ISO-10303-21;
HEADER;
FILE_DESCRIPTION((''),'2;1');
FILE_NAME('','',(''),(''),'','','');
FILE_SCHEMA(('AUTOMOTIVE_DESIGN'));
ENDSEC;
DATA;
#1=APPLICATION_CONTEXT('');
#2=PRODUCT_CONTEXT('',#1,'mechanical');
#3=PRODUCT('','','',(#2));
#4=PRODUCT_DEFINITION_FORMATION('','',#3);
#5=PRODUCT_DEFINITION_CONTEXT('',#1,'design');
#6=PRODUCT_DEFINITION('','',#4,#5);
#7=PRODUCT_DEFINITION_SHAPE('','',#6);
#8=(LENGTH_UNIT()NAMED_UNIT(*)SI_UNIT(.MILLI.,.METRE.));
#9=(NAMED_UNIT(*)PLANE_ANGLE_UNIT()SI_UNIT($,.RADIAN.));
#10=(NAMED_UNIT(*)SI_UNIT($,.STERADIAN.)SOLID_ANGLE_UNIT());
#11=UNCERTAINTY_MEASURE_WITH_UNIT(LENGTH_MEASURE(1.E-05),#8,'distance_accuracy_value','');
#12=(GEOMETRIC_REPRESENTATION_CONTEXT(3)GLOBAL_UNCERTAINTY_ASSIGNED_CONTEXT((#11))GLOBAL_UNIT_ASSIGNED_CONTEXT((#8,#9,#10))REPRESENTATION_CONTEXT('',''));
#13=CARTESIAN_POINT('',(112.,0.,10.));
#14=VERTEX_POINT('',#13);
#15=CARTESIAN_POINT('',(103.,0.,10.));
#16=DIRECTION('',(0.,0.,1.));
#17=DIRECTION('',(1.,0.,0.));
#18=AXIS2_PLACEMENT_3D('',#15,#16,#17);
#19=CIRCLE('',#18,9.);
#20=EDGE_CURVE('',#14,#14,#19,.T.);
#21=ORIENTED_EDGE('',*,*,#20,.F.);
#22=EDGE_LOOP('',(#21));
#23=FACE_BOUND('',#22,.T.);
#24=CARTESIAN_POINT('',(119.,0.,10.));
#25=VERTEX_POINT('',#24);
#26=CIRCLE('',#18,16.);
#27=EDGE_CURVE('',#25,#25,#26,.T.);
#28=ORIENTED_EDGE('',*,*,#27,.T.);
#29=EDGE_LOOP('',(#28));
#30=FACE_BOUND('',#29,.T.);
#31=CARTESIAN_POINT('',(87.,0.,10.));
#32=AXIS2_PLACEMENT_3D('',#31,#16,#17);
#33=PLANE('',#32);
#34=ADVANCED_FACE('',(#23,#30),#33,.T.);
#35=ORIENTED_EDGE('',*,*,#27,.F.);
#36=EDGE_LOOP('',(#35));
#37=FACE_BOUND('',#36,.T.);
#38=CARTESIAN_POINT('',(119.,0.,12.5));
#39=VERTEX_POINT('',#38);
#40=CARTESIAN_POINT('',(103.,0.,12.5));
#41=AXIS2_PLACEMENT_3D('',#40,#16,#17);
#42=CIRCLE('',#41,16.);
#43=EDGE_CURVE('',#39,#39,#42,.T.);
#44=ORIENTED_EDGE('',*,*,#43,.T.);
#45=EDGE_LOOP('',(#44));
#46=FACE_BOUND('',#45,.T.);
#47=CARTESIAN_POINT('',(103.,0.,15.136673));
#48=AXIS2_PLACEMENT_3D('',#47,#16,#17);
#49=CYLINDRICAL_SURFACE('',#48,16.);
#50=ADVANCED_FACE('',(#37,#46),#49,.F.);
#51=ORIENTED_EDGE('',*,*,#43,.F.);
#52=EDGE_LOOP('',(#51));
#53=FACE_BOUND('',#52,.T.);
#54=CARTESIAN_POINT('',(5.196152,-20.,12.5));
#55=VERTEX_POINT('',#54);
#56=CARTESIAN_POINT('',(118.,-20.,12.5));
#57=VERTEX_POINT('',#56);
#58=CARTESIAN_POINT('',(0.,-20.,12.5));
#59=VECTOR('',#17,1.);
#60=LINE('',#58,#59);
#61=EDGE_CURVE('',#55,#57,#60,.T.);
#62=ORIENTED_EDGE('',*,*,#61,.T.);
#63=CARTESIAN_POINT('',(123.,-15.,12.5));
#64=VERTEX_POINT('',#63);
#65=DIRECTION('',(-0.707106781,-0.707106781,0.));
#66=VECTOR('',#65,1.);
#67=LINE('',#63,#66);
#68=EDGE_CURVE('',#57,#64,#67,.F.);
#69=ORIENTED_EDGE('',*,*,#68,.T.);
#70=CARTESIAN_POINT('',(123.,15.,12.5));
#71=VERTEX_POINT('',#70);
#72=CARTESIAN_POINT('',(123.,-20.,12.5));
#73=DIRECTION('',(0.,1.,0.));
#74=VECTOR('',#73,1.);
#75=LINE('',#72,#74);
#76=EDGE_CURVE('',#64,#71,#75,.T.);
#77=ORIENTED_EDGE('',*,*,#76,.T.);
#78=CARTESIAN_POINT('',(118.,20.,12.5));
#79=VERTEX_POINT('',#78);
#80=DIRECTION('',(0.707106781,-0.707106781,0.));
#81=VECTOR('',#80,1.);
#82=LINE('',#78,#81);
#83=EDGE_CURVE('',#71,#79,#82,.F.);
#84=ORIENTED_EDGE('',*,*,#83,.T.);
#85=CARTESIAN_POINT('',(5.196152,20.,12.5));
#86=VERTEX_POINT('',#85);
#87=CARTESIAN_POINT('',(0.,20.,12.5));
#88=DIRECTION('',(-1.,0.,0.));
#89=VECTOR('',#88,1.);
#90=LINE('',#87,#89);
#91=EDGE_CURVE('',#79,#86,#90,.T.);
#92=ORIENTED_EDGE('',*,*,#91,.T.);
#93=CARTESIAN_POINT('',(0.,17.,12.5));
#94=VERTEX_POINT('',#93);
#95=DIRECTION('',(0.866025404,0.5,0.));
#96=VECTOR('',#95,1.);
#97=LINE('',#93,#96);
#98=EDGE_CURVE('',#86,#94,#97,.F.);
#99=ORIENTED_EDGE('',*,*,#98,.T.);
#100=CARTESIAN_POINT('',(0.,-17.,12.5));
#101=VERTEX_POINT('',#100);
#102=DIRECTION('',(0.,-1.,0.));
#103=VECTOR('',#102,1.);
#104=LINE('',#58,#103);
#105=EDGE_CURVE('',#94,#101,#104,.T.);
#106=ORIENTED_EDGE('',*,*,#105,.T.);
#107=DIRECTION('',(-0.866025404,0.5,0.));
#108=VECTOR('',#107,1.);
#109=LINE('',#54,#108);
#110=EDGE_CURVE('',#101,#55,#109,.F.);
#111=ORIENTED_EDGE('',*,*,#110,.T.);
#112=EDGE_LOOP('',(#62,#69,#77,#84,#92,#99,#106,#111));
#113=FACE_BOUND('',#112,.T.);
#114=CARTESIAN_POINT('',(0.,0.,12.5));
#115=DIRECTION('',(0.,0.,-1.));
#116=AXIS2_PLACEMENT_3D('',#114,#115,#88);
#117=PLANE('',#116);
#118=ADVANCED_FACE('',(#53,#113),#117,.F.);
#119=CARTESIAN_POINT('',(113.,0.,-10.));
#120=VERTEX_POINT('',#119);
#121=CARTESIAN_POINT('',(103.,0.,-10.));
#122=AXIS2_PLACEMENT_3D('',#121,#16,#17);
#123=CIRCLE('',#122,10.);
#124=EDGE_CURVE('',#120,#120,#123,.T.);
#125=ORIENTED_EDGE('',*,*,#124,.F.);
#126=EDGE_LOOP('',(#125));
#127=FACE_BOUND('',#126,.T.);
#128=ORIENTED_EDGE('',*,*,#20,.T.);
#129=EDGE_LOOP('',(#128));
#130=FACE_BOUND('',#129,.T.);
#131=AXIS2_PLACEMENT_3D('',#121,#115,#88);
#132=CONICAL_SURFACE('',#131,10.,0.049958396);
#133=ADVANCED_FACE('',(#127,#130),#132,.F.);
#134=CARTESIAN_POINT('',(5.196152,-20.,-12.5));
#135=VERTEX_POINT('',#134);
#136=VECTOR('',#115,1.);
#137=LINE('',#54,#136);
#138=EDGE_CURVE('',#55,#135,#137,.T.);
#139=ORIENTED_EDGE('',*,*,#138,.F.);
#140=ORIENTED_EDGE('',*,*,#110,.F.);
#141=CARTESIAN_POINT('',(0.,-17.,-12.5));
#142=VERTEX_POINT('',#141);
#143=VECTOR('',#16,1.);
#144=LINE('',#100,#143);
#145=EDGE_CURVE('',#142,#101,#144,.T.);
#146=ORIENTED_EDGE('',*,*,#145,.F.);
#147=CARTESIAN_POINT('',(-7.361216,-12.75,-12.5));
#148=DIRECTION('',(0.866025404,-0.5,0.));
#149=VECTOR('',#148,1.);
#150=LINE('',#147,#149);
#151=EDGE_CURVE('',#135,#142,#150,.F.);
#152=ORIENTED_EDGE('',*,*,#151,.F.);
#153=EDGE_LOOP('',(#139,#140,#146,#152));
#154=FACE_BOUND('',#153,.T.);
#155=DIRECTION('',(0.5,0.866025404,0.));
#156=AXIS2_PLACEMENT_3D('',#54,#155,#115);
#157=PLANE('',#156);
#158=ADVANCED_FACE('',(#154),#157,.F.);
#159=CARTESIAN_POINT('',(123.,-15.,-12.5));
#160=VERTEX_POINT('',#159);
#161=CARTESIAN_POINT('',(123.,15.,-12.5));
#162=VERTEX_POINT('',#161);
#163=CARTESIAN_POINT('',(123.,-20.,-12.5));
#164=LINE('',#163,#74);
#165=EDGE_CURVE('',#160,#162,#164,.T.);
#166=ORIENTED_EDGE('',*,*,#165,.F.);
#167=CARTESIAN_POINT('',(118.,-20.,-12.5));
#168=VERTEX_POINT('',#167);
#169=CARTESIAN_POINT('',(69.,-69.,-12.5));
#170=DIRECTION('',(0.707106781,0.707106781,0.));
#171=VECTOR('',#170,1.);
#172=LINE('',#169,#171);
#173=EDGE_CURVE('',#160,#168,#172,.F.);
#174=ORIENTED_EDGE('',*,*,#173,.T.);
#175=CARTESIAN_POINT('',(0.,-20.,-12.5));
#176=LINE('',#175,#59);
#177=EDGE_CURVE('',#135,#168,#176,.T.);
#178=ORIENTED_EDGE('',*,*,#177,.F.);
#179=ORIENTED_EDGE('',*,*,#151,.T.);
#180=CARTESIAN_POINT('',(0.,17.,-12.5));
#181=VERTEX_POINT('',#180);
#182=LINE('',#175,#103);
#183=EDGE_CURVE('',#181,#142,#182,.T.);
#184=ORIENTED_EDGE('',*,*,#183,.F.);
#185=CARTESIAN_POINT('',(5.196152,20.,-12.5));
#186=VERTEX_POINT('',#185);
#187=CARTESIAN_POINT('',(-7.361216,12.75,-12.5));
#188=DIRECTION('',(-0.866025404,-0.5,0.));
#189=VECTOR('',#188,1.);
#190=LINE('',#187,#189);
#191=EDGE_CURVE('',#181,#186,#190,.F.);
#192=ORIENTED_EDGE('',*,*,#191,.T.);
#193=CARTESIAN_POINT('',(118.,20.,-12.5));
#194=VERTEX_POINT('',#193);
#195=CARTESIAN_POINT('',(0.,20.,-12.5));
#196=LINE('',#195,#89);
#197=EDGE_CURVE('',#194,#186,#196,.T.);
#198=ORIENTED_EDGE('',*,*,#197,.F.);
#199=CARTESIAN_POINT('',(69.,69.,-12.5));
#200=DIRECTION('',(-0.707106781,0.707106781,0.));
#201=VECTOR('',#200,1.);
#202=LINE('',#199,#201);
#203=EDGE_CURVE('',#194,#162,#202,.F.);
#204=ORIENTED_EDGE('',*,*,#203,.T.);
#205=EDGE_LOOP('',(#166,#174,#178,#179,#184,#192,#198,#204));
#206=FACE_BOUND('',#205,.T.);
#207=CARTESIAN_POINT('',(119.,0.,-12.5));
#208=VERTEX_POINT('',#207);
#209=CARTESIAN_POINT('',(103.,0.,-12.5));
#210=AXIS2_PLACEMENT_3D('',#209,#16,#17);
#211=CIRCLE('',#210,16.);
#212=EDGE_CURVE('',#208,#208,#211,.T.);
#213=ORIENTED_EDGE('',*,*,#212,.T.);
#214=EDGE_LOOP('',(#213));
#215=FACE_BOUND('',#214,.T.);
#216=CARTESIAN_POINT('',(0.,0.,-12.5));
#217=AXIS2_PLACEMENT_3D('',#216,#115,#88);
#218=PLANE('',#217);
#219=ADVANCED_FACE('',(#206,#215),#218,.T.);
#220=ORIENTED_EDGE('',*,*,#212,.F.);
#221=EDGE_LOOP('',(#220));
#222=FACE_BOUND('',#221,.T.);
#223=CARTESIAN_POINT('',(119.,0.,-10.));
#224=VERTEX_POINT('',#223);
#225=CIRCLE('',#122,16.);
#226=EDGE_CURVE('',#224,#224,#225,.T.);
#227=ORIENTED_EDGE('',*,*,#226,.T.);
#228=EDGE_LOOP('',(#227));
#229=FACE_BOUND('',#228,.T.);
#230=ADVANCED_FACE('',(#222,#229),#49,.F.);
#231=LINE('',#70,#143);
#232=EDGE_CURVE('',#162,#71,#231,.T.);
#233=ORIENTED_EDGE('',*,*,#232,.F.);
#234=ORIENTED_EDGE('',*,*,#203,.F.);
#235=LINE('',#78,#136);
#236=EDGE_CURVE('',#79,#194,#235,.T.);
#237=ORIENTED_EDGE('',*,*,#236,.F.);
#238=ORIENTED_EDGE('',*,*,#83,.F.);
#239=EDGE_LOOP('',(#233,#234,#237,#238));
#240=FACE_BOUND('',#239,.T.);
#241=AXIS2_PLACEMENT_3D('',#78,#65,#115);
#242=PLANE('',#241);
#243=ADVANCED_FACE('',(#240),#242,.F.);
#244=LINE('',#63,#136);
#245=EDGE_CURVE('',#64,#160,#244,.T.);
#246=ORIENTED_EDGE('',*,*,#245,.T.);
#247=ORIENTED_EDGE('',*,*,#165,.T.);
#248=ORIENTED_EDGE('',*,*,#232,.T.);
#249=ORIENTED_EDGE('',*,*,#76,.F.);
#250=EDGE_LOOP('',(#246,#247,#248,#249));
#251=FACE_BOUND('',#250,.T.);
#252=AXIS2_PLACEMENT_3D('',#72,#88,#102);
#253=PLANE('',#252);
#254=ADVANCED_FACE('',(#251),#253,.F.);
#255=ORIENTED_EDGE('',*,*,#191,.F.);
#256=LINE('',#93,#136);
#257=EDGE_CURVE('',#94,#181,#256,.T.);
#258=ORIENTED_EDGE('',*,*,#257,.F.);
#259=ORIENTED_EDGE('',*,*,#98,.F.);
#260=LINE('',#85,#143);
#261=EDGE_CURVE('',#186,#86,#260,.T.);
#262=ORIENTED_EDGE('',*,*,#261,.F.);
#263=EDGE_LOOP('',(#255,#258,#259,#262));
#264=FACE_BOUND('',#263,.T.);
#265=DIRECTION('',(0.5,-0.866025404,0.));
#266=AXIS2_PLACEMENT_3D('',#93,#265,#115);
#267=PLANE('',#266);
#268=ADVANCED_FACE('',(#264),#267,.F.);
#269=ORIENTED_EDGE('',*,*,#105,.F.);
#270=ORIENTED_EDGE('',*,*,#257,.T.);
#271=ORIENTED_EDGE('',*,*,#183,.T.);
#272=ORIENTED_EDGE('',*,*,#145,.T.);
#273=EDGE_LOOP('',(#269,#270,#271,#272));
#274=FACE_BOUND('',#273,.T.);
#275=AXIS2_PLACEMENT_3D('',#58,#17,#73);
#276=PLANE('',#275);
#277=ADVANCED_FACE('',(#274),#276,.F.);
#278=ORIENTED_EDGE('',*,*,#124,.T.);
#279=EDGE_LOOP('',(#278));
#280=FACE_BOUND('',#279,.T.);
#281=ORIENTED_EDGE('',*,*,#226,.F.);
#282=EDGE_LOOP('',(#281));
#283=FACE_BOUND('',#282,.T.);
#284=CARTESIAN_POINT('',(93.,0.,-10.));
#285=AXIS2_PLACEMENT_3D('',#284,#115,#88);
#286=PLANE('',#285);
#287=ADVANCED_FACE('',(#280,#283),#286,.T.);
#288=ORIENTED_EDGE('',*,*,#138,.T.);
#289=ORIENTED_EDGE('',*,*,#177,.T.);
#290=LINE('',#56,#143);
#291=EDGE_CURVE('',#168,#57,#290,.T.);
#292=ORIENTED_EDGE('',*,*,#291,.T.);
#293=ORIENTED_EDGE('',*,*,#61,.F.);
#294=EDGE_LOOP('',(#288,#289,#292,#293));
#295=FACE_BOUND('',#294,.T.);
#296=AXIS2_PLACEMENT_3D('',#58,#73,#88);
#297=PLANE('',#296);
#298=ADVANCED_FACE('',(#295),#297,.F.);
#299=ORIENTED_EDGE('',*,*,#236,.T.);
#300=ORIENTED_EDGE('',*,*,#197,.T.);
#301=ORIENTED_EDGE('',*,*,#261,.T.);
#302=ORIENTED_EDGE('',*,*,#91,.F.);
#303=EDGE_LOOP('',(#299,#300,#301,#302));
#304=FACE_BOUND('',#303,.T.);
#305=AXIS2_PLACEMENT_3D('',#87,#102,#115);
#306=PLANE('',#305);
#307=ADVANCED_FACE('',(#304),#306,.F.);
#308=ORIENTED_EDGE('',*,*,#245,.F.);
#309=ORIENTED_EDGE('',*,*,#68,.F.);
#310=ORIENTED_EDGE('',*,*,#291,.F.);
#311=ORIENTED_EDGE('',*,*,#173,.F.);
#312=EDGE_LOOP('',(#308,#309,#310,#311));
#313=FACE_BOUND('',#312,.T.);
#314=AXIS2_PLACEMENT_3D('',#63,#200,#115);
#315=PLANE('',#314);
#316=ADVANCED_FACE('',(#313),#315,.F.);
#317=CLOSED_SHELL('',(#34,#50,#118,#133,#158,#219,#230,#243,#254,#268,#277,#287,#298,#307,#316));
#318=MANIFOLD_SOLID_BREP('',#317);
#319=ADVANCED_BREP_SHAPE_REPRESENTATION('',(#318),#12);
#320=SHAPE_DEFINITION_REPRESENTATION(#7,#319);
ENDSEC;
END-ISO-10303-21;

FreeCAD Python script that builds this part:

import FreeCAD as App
import Part
import Sketcher


def edges_at(feature, points):
    """Names of the edges that pass closest to the given points."""
    edges = feature.Shape.Edges
    near = lambda p: min(range(len(edges)), key=lambda i: edges[i].distToShape(Part.Vertex(*p))[0])
    return sorted({f"Edge{near(p) + 1}" for p in points})


def add_polygon(sketch, points):
    """Adds a closed chain of lines whose ends are joined by coincident constraints."""
    first, n = sketch.GeometryCount, len(points)
    for a, b in zip(points, points[1:] + points[:1]):
        sketch.addGeometry(Part.LineSegment(App.Vector(*a, 0), App.Vector(*b, 0)), False)
    for i in range(n):
        sketch.addConstraint(Sketcher.Constraint("Coincident", first + i, 2, first + (i + 1) % n, 1))

doc = App.newDocument("Part")
params = doc.addObject("Spreadsheet::Sheet", "Params")
for row, (alias, value) in enumerate([
    ("sketch1_width", "123 mm"),
    ("sketch1_height", "40 mm"),
    ("pad1_length", "25 mm"),
    ("sketch2_width", "16 mm"),
    ("sketch2_width2", "6 mm"),
    ("sketch2_width3", "7 mm"),
    ("sketch2_height", "25 mm"),
    ("sketch2_height2", "2.5 mm"),
    ("groove_angle", "360 deg"),
    ("chamfer_size", "3 mm"),
    ("chamfer_size2", "5.196152 mm"),
    ("chamfer2_size", "5 mm"),
], start=1):
    params.set(f"A{row}", alias)
    params.set(f"B{row}", "=" + value)
    params.setAlias(f"B{row}", alias)

body = doc.addObject("PartDesign::Body", "Body")

sketch1 = body.newObject("Sketcher::SketchObject", "Sketch")
sketch1.AttachmentSupport = (doc.getObject("XY_Plane"), [""])
sketch1.MapMode = "FlatFace"
add_polygon(sketch1, [(0, 20), (0, -20), (123, -20), (123, 20)])
sketch1.addConstraint([
    Sketcher.Constraint("Vertical", 0),
    Sketcher.Constraint("Horizontal", 1),
    Sketcher.Constraint("Vertical", 2),
    Sketcher.Constraint("Horizontal", 3),
    Sketcher.Constraint("Symmetric", 0, 2, 3, 2, -1, 1),
    Sketcher.Constraint("DistanceX", 1, 1, 1, 2, 123.0),
    Sketcher.Constraint("DistanceY", 0, 2, 0, 1, 40.0),
])
sketch1.setExpression("Constraints[9]", "Params.sketch1_width")
sketch1.setExpression("Constraints[10]", "Params.sketch1_height")
pad1 = body.newObject("PartDesign::Pad", "Pad")
pad1.Profile = sketch1
pad1.setExpression("Length", "Params.pad1_length")
pad1.Midplane = True

sketch2 = body.newObject("Sketcher::SketchObject", "Sketch001")
sketch2.AttachmentSupport = (doc.getObject("XZ_Plane"), [""])
sketch2.MapMode = "FlatFace"
add_polygon(sketch2, [(87, 12.5), (103, 12.5), (103, -12.5), (87, -12.5), (87, -10), (93, -10), (94, 10), (87, 10)])
sketch2.addGeometry(Part.LineSegment(App.Vector(103, 12.5, 0), App.Vector(103, -12.5, 0)), True)
sketch2.addConstraint([
    Sketcher.Constraint("Horizontal", 0),
    Sketcher.Constraint("Vertical", 1),
    Sketcher.Constraint("Horizontal", 2),
    Sketcher.Constraint("Vertical", 3),
    Sketcher.Constraint("Horizontal", 4),
    Sketcher.Constraint("Horizontal", 6),
    Sketcher.Constraint("Vertical", 7),
    Sketcher.Constraint("Vertical", 8),
    Sketcher.Constraint("Coincident", 8, 1, 0, 2),
    Sketcher.Constraint("Symmetric", 3, 2, 6, 2, -1),
    Sketcher.Constraint("Horizontal", 2, 2, 8, 2),
    Sketcher.Constraint("Equal", 3, 7),
    Sketcher.Constraint("DistanceX", 0, 1, 0, 2, 16.0),
    Sketcher.Constraint("DistanceX", 4, 1, 4, 2, 6.0),
    Sketcher.Constraint("DistanceX", 6, 2, 6, 1, 7.0),
    Sketcher.Constraint("DistanceY", 1, 2, 1, 1, 25.0),
    Sketcher.Constraint("DistanceY", 3, 1, 3, 2, 2.5),
    Sketcher.Constraint("DistanceX", -1, 1, 0, 2, 103.0),
])
sketch2.setExpression("Constraints[20]", "Params.sketch2_width")
sketch2.setExpression("Constraints[21]", "Params.sketch2_width2")
sketch2.setExpression("Constraints[22]", "Params.sketch2_width3")
sketch2.setExpression("Constraints[23]", "Params.sketch2_height")
sketch2.setExpression("Constraints[24]", "Params.sketch2_height2")
groove = body.newObject("PartDesign::Groove", "Groove")
groove.Profile = sketch2
groove.ReferenceAxis = (sketch2, ["Axis0"])
groove.setExpression("Angle", "Params.groove_angle")
doc.recompute()

chamfer = body.newObject("PartDesign::Chamfer", "Chamfer")
chamfer.Base = (groove, edges_at(groove, [(0, 20, 0), (0, -20, 0)]))
chamfer.ChamferType = "Two distances"
chamfer.setExpression("Size", "Params.chamfer_size")
chamfer.setExpression("Size2", "Params.chamfer_size2")
doc.recompute()

chamfer2 = body.newObject("PartDesign::Chamfer", "Chamfer001")
chamfer2.Base = (chamfer, edges_at(chamfer, [(123, 20, 0), (123, -20, 0)]))
chamfer2.setExpression("Size", "Params.chamfer2_size")

doc.recompute()
